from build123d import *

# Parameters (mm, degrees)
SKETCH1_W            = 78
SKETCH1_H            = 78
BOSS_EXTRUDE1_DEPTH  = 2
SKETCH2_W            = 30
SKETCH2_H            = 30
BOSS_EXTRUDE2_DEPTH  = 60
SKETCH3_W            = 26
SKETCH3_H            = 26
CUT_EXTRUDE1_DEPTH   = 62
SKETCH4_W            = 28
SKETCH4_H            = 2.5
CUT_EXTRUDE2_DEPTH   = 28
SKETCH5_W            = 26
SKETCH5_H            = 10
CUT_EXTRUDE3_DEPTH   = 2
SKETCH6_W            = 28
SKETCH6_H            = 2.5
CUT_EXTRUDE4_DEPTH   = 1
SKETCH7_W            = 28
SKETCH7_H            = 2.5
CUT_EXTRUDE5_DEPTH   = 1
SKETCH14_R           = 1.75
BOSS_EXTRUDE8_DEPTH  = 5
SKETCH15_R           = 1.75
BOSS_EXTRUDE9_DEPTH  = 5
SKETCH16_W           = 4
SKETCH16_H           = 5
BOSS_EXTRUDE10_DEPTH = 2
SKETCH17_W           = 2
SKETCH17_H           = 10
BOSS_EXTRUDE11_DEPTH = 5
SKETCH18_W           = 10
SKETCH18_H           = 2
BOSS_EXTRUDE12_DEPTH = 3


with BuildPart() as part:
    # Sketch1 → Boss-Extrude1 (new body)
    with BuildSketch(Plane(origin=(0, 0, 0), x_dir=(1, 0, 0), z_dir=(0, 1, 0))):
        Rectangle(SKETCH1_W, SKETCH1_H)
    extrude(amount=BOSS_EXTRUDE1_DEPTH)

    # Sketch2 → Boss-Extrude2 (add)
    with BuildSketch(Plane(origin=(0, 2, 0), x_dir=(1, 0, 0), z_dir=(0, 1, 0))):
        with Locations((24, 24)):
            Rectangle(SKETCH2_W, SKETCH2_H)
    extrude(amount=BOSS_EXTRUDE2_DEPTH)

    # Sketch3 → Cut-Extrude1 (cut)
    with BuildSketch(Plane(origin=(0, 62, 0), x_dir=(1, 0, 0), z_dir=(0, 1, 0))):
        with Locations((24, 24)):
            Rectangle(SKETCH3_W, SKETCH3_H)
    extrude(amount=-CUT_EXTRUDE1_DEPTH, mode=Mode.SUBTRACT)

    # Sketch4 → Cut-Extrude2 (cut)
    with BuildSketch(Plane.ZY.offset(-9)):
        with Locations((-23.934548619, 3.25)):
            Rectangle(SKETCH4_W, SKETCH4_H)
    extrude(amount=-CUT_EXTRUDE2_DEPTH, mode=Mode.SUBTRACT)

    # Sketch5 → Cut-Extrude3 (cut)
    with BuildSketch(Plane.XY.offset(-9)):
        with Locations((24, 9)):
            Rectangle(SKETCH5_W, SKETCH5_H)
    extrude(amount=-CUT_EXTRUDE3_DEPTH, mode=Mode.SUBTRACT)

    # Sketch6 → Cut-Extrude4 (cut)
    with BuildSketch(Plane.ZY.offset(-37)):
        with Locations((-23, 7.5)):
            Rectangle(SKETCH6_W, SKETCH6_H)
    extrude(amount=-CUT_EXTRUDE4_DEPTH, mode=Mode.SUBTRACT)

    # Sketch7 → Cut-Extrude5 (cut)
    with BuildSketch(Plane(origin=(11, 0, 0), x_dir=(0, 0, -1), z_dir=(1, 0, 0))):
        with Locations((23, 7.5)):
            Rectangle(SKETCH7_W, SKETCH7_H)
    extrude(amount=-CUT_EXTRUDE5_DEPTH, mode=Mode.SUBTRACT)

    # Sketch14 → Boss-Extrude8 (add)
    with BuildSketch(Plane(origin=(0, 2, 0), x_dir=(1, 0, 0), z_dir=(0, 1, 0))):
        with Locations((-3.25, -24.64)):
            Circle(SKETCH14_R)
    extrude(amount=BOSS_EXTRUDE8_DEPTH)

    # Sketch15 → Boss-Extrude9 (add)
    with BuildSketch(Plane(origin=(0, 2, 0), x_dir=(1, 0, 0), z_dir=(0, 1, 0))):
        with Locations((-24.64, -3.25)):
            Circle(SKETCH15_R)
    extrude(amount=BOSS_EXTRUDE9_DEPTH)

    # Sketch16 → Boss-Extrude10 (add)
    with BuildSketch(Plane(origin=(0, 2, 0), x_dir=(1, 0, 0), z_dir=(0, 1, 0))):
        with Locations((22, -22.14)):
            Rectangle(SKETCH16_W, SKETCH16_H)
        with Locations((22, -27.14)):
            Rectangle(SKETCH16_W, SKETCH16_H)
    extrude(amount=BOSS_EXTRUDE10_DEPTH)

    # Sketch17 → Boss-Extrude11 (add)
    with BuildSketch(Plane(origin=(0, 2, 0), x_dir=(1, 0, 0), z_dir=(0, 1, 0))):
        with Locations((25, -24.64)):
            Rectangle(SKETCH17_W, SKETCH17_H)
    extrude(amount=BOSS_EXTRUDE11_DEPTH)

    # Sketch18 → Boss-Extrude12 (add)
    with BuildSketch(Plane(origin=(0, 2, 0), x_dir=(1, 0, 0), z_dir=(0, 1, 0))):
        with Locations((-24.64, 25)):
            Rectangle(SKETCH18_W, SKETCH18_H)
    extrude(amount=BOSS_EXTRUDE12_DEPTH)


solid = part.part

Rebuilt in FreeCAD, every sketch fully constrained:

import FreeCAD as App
import Part
import Sketcher

V = App.Vector


def add_polygon(sketch, points):
    """Adds a closed chain of lines whose ends are joined by coincident constraints."""
    first, n = sketch.GeometryCount, len(points)
    for a, b in zip(points, points[1:] + points[:1]):
        sketch.addGeometry(Part.LineSegment(App.Vector(*a, 0), App.Vector(*b, 0)), False)
    for i in range(n):
        sketch.addConstraint(Sketcher.Constraint("Coincident", first + i, 2, first + (i + 1) % n, 1))

doc = App.newDocument("Part")
body = doc.addObject("PartDesign::Body", "Body")

# Sketch on XZ plane
sketch1 = doc.addObject("Sketcher::SketchObject", "Sketch")
body.addObject(sketch1)
sketch1.AttachmentSupport = (doc.XZ_Plane, [""])
sketch1.MapMode = "FlatFace"
add_polygon(sketch1, [(-39, -39), (-39, 39), (39, 39), (39, -39)])  # lines 0-3
sketch1.addConstraint(Sketcher.Constraint("Vertical", 0))
sketch1.addConstraint(Sketcher.Constraint("Horizontal", 1))
sketch1.addConstraint(Sketcher.Constraint("Vertical", 2))
sketch1.addConstraint(Sketcher.Constraint("Horizontal", 3))
sketch1.addConstraint(Sketcher.Constraint("Symmetric", 0, 2, 2, 2, -1, 1))
sketch1.addConstraint(Sketcher.Constraint("Equal", 3, 0))
sketch1.addConstraint(Sketcher.Constraint("DistanceX", 1, 1, 1, 2, 78.0))
pad1 = doc.addObject("PartDesign::Pad", "Pad")
body.addObject(pad1)
pad1.Profile = sketch1
pad1.Length = 2
pad1.Reversed = True

# Sketch on XZ plane
sketch2 = doc.addObject("Sketcher::SketchObject", "Sketch001")
body.addObject(sketch2)
sketch2.AttachmentSupport = (doc.XZ_Plane, [""])
sketch2.MapMode = "FlatFace"
sketch2.AttachmentOffset = App.Placement(V(0, 0, -2), App.Rotation())
add_polygon(sketch2, [(9, -39), (9, -9), (39, -9), (39, -39)])  # lines 0-3
sketch2.addConstraint(Sketcher.Constraint("Vertical", 0))
sketch2.addConstraint(Sketcher.Constraint("Horizontal", 1))
sketch2.addConstraint(Sketcher.Constraint("Vertical", 2))
sketch2.addConstraint(Sketcher.Constraint("Horizontal", 3))
sketch2.addConstraint(Sketcher.Constraint("Equal", 3, 0))
sketch2.addConstraint(Sketcher.Constraint("DistanceX", 1, 1, 1, 2, 30.0))
sketch2.addConstraint(Sketcher.Constraint("DistanceX", -1, 1, 0, 2, 9.0))
sketch2.addConstraint(Sketcher.Constraint("DistanceY", 0, 2, -1, 1, 9.0))
pad2 = doc.addObject("PartDesign::Pad", "Pad001")
body.addObject(pad2)
pad2.Profile = sketch2
pad2.Length = 60
pad2.Reversed = True

# Sketch on XZ plane
sketch3 = doc.addObject("Sketcher::SketchObject", "Sketch002")
body.addObject(sketch3)
sketch3.AttachmentSupport = (doc.XZ_Plane, [""])
sketch3.MapMode = "FlatFace"
sketch3.AttachmentOffset = App.Placement(V(0, 0, -62), App.Rotation())
add_polygon(sketch3, [(11, -37), (11, -11), (37, -11), (37, -37)])  # lines 0-3
sketch3.addConstraint(Sketcher.Constraint("Vertical", 0))
sketch3.addConstraint(Sketcher.Constraint("Horizontal", 1))
sketch3.addConstraint(Sketcher.Constraint("Vertical", 2))
sketch3.addConstraint(Sketcher.Constraint("Horizontal", 3))
sketch3.addConstraint(Sketcher.Constraint("Equal", 3, 0))
sketch3.addConstraint(Sketcher.Constraint("DistanceX", 1, 1, 1, 2, 26.0))
sketch3.addConstraint(Sketcher.Constraint("DistanceX", -1, 1, 0, 2, 11.0))
sketch3.addConstraint(Sketcher.Constraint("DistanceY", 0, 2, -1, 1, 11.0))
pocket1 = doc.addObject("PartDesign::Pocket", "Pocket")
body.addObject(pocket1)
pocket1.Profile = sketch3
pocket1.Length = 62
pocket1.Reversed = True

# Sketch on YZ plane
sketch4 = doc.addObject("Sketcher::SketchObject", "Sketch003")
body.addObject(sketch4)
sketch4.AttachmentSupport = (doc.YZ_Plane, [""])
sketch4.MapMode = "FlatFace"
sketch4.AttachmentOffset = App.Placement(V(0, 0, 9), App.Rotation())
add_polygon(sketch4, [(4.5, -37.934549), (2, -37.934549), (2, -9.934549), (4.5, -9.934549)])  # lines 0-3
sketch4.addConstraint(Sketcher.Constraint("Horizontal", 0))
sketch4.addConstraint(Sketcher.Constraint("Vertical", 1))
sketch4.addConstraint(Sketcher.Constraint("Horizontal", 2))
sketch4.addConstraint(Sketcher.Constraint("Vertical", 3))
sketch4.addConstraint(Sketcher.Constraint("DistanceY", 1, 1, 1, 2, 28.0))
sketch4.addConstraint(Sketcher.Constraint("DistanceX", 0, 2, 0, 1, 2.5))
sketch4.addConstraint(Sketcher.Constraint("DistanceX", -1, 1, 0, 2, 2.0))
sketch4.addConstraint(Sketcher.Constraint("DistanceY", 0, 2, -1, 1, 37.934549))
pocket2 = doc.addObject("PartDesign::Pocket", "Pocket001")
body.addObject(pocket2)
pocket2.Profile = sketch4
pocket2.Length = 28
pocket2.Reversed = True

# Sketch on XY plane
sketch5 = doc.addObject("Sketcher::SketchObject", "Sketch004")
body.addObject(sketch5)
sketch5.AttachmentSupport = (doc.XY_Plane, [""])
sketch5.MapMode = "FlatFace"
sketch5.AttachmentOffset = App.Placement(V(0, 0, -9), App.Rotation())
add_polygon(sketch5, [(11, 14), (11, 4), (37, 4), (37, 14)])  # lines 0-3
sketch5.addConstraint(Sketcher.Constraint("Vertical", 0))
sketch5.addConstraint(Sketcher.Constraint("Horizontal", 1))
sketch5.addConstraint(Sketcher.Constraint("Vertical", 2))
sketch5.addConstraint(Sketcher.Constraint("Horizontal", 3))
sketch5.addConstraint(Sketcher.Constraint("DistanceX", 1, 1, 1, 2, 26.0))
sketch5.addConstraint(Sketcher.Constraint("DistanceY", 0, 2, 0, 1, 10.0))
sketch5.addConstraint(Sketcher.Constraint("DistanceX", -1, 1, 0, 2, 11.0))
sketch5.addConstraint(Sketcher.Constraint("DistanceY", -1, 1, 0, 2, 4.0))
pocket3 = doc.addObject("PartDesign::Pocket", "Pocket002")
body.addObject(pocket3)
pocket3.Profile = sketch5
pocket3.Length = 2

# Sketch on YZ plane
sketch6 = doc.addObject("Sketcher::SketchObject", "Sketch005")
body.addObject(sketch6)
sketch6.AttachmentSupport = (doc.YZ_Plane, [""])
sketch6.MapMode = "FlatFace"
sketch6.AttachmentOffset = App.Placement(V(0, 0, 37), App.Rotation())
add_polygon(sketch6, [(8.75, -37), (6.25, -37), (6.25, -9), (8.75, -9)])  # lines 0-3
sketch6.addConstraint(Sketcher.Constraint("Horizontal", 0))
sketch6.addConstraint(Sketcher.Constraint("Vertical", 1))
sketch6.addConstraint(Sketcher.Constraint("Horizontal", 2))
sketch6.addConstraint(Sketcher.Constraint("Vertical", 3))
sketch6.addConstraint(Sketcher.Constraint("DistanceY", 1, 1, 1, 2, 28.0))
sketch6.addConstraint(Sketcher.Constraint("DistanceX", 0, 2, 0, 1, 2.5))
sketch6.addConstraint(Sketcher.Constraint("DistanceY", 0, 2, -1, 1, 37.0))
sketch6.addConstraint(Sketcher.Constraint("DistanceX", -1, 1, 0, 2, 6.25))
pocket4 = doc.addObject("PartDesign::Pocket", "Pocket003")
body.addObject(pocket4)
pocket4.Profile = sketch6
pocket4.Length = 1
pocket4.Reversed = True

# Sketch on YZ plane
sketch7 = doc.addObject("Sketcher::SketchObject", "Sketch006")
body.addObject(sketch7)
sketch7.AttachmentSupport = (doc.YZ_Plane, [""])
sketch7.MapMode = "FlatFace"
sketch7.AttachmentOffset = App.Placement(V(0, 0, 11), App.Rotation())
add_polygon(sketch7, [(8.75, -9), (6.25, -9), (6.25, -37), (8.75, -37)])  # lines 0-3
sketch7.addConstraint(Sketcher.Constraint("Horizontal", 0))
sketch7.addConstraint(Sketcher.Constraint("Vertical", 1))
sketch7.addConstraint(Sketcher.Constraint("Horizontal", 2))
sketch7.addConstraint(Sketcher.Constraint("Vertical", 3))
sketch7.addConstraint(Sketcher.Constraint("DistanceY", 1, 2, 1, 1, 28.0))
sketch7.addConstraint(Sketcher.Constraint("DistanceX", 0, 2, 0, 1, 2.5))
sketch7.addConstraint(Sketcher.Constraint("DistanceY", 0, 2, -1, 1, 9.0))
sketch7.addConstraint(Sketcher.Constraint("DistanceX", -1, 1, 0, 2, 6.25))
pocket5 = doc.addObject("PartDesign::Pocket", "Pocket004")
body.addObject(pocket5)
pocket5.Profile = sketch7
pocket5.Length = 1

# Sketch on XZ plane
sketch8 = doc.addObject("Sketcher::SketchObject", "Sketch007")
body.addObject(sketch8)
sketch8.AttachmentSupport = (doc.XZ_Plane, [""])
sketch8.MapMode = "FlatFace"
sketch8.AttachmentOffset = App.Placement(V(0, 0, -2), App.Rotation())
sketch8.addGeometry(Part.Circle(V(-3.25, 24.64, 0), V(0, 0, 1), 1.75), False)
sketch8.addConstraint(Sketcher.Constraint("Diameter", 0, 3.5))
sketch8.addConstraint(Sketcher.Constraint("DistanceX", 0, 3, -1, 1, 3.25))
sketch8.addConstraint(Sketcher.Constraint("DistanceY", -1, 1, 0, 3, 24.64))
pad3 = doc.addObject("PartDesign::Pad", "Pad002")
body.addObject(pad3)
pad3.Profile = sketch8
pad3.Length = 5
pad3.Reversed = True

# Sketch on XZ plane
sketch9 = doc.addObject("Sketcher::SketchObject", "Sketch008")
body.addObject(sketch9)
sketch9.AttachmentSupport = (doc.XZ_Plane, [""])
sketch9.MapMode = "FlatFace"
sketch9.AttachmentOffset = App.Placement(V(0, 0, -2), App.Rotation())
sketch9.addGeometry(Part.Circle(V(-24.64, 3.25, 0), V(0, 0, 1), 1.75), False)
sketch9.addConstraint(Sketcher.Constraint("Diameter", 0, 3.5))
sketch9.addConstraint(Sketcher.Constraint("DistanceX", 0, 3, -1, 1, 24.64))
sketch9.addConstraint(Sketcher.Constraint("DistanceY", -1, 1, 0, 3, 3.25))
pad4 = doc.addObject("PartDesign::Pad", "Pad003")
body.addObject(pad4)
pad4.Profile = sketch9
pad4.Length = 5
pad4.Reversed = True

# Sketch on XZ plane
sketch10 = doc.addObject("Sketcher::SketchObject", "Sketch009")
body.addObject(sketch10)
sketch10.AttachmentSupport = (doc.XZ_Plane, [""])
sketch10.MapMode = "FlatFace"
sketch10.AttachmentOffset = App.Placement(V(0, 0, -2), App.Rotation())
add_polygon(sketch10, [(20, 19.64), (20, 29.64), (24, 29.64), (24, 19.64)])  # lines 0-3
sketch10.addConstraint(Sketcher.Constraint("Vertical", 0))
sketch10.addConstraint(Sketcher.Constraint("Horizontal", 1))
sketch10.addConstraint(Sketcher.Constraint("Vertical", 2))
sketch10.addConstraint(Sketcher.Constraint("Horizontal", 3))
sketch10.addConstraint(Sketcher.Constraint("DistanceX", 1, 1, 1, 2, 4.0))
sketch10.addConstraint(Sketcher.Constraint("DistanceY", 0, 1, 0, 2, 10.0))
sketch10.addConstraint(Sketcher.Constraint("DistanceX", -1, 1, 0, 2, 20.0))
sketch10.addConstraint(Sketcher.Constraint("DistanceY", -1, 1, 0, 2, 29.64))
pad5 = doc.addObject("PartDesign::Pad", "Pad004")
body.addObject(pad5)
pad5.Profile = sketch10
pad5.Length = 2
pad5.Reversed = True

# Sketch on XZ plane
sketch11 = doc.addObject("Sketcher::SketchObject", "Sketch010")
body.addObject(sketch11)
sketch11.AttachmentSupport = (doc.XZ_Plane, [""])
sketch11.MapMode = "FlatFace"
sketch11.AttachmentOffset = App.Placement(V(0, 0, -2), App.Rotation())
add_polygon(sketch11, [(24, 19.64), (24, 29.64), (26, 29.64), (26, 19.64)])  # lines 0-3
sketch11.addConstraint(Sketcher.Constraint("Vertical", 0))
sketch11.addConstraint(Sketcher.Constraint("Horizontal", 1))
sketch11.addConstraint(Sketcher.Constraint("Vertical", 2))
sketch11.addConstraint(Sketcher.Constraint("Horizontal", 3))
sketch11.addConstraint(Sketcher.Constraint("DistanceX", 1, 1, 1, 2, 2.0))
sketch11.addConstraint(Sketcher.Constraint("DistanceY", 0, 1, 0, 2, 10.0))
sketch11.addConstraint(Sketcher.Constraint("DistanceX", -1, 1, 0, 2, 24.0))
sketch11.addConstraint(Sketcher.Constraint("DistanceY", -1, 1, 0, 2, 29.64))
pad6 = doc.addObject("PartDesign::Pad", "Pad005")
body.addObject(pad6)
pad6.Profile = sketch11
pad6.Length = 5
pad6.Reversed = True

# Sketch on XZ plane
sketch12 = doc.addObject("Sketcher::SketchObject", "Sketch011")
body.addObject(sketch12)
sketch12.AttachmentSupport = (doc.XZ_Plane, [""])
sketch12.MapMode = "FlatFace"
sketch12.AttachmentOffset = App.Placement(V(0, 0, -2), App.Rotation())
add_polygon(sketch12, [(-29.64, -26), (-29.64, -24), (-19.64, -24), (-19.64, -26)])  # lines 0-3
sketch12.addConstraint(Sketcher.Constraint("Vertical", 0))
sketch12.addConstraint(Sketcher.Constraint("Horizontal", 1))
sketch12.addConstraint(Sketcher.Constraint("Vertical", 2))
sketch12.addConstraint(Sketcher.Constraint("Horizontal", 3))
sketch12.addConstraint(Sketcher.Constraint("DistanceX", 1, 1, 1, 2, 10.0))
sketch12.addConstraint(Sketcher.Constraint("DistanceY", 0, 1, 0, 2, 2.0))
sketch12.addConstraint(Sketcher.Constraint("DistanceY", 0, 2, -1, 1, 24.0))
sketch12.addConstraint(Sketcher.Constraint("DistanceX", 0, 2, -1, 1, 29.64))
pad7 = doc.addObject("PartDesign::Pad", "Pad006")
body.addObject(pad7)
pad7.Profile = sketch12
pad7.Length = 3
pad7.Reversed = True

doc.recompute()
